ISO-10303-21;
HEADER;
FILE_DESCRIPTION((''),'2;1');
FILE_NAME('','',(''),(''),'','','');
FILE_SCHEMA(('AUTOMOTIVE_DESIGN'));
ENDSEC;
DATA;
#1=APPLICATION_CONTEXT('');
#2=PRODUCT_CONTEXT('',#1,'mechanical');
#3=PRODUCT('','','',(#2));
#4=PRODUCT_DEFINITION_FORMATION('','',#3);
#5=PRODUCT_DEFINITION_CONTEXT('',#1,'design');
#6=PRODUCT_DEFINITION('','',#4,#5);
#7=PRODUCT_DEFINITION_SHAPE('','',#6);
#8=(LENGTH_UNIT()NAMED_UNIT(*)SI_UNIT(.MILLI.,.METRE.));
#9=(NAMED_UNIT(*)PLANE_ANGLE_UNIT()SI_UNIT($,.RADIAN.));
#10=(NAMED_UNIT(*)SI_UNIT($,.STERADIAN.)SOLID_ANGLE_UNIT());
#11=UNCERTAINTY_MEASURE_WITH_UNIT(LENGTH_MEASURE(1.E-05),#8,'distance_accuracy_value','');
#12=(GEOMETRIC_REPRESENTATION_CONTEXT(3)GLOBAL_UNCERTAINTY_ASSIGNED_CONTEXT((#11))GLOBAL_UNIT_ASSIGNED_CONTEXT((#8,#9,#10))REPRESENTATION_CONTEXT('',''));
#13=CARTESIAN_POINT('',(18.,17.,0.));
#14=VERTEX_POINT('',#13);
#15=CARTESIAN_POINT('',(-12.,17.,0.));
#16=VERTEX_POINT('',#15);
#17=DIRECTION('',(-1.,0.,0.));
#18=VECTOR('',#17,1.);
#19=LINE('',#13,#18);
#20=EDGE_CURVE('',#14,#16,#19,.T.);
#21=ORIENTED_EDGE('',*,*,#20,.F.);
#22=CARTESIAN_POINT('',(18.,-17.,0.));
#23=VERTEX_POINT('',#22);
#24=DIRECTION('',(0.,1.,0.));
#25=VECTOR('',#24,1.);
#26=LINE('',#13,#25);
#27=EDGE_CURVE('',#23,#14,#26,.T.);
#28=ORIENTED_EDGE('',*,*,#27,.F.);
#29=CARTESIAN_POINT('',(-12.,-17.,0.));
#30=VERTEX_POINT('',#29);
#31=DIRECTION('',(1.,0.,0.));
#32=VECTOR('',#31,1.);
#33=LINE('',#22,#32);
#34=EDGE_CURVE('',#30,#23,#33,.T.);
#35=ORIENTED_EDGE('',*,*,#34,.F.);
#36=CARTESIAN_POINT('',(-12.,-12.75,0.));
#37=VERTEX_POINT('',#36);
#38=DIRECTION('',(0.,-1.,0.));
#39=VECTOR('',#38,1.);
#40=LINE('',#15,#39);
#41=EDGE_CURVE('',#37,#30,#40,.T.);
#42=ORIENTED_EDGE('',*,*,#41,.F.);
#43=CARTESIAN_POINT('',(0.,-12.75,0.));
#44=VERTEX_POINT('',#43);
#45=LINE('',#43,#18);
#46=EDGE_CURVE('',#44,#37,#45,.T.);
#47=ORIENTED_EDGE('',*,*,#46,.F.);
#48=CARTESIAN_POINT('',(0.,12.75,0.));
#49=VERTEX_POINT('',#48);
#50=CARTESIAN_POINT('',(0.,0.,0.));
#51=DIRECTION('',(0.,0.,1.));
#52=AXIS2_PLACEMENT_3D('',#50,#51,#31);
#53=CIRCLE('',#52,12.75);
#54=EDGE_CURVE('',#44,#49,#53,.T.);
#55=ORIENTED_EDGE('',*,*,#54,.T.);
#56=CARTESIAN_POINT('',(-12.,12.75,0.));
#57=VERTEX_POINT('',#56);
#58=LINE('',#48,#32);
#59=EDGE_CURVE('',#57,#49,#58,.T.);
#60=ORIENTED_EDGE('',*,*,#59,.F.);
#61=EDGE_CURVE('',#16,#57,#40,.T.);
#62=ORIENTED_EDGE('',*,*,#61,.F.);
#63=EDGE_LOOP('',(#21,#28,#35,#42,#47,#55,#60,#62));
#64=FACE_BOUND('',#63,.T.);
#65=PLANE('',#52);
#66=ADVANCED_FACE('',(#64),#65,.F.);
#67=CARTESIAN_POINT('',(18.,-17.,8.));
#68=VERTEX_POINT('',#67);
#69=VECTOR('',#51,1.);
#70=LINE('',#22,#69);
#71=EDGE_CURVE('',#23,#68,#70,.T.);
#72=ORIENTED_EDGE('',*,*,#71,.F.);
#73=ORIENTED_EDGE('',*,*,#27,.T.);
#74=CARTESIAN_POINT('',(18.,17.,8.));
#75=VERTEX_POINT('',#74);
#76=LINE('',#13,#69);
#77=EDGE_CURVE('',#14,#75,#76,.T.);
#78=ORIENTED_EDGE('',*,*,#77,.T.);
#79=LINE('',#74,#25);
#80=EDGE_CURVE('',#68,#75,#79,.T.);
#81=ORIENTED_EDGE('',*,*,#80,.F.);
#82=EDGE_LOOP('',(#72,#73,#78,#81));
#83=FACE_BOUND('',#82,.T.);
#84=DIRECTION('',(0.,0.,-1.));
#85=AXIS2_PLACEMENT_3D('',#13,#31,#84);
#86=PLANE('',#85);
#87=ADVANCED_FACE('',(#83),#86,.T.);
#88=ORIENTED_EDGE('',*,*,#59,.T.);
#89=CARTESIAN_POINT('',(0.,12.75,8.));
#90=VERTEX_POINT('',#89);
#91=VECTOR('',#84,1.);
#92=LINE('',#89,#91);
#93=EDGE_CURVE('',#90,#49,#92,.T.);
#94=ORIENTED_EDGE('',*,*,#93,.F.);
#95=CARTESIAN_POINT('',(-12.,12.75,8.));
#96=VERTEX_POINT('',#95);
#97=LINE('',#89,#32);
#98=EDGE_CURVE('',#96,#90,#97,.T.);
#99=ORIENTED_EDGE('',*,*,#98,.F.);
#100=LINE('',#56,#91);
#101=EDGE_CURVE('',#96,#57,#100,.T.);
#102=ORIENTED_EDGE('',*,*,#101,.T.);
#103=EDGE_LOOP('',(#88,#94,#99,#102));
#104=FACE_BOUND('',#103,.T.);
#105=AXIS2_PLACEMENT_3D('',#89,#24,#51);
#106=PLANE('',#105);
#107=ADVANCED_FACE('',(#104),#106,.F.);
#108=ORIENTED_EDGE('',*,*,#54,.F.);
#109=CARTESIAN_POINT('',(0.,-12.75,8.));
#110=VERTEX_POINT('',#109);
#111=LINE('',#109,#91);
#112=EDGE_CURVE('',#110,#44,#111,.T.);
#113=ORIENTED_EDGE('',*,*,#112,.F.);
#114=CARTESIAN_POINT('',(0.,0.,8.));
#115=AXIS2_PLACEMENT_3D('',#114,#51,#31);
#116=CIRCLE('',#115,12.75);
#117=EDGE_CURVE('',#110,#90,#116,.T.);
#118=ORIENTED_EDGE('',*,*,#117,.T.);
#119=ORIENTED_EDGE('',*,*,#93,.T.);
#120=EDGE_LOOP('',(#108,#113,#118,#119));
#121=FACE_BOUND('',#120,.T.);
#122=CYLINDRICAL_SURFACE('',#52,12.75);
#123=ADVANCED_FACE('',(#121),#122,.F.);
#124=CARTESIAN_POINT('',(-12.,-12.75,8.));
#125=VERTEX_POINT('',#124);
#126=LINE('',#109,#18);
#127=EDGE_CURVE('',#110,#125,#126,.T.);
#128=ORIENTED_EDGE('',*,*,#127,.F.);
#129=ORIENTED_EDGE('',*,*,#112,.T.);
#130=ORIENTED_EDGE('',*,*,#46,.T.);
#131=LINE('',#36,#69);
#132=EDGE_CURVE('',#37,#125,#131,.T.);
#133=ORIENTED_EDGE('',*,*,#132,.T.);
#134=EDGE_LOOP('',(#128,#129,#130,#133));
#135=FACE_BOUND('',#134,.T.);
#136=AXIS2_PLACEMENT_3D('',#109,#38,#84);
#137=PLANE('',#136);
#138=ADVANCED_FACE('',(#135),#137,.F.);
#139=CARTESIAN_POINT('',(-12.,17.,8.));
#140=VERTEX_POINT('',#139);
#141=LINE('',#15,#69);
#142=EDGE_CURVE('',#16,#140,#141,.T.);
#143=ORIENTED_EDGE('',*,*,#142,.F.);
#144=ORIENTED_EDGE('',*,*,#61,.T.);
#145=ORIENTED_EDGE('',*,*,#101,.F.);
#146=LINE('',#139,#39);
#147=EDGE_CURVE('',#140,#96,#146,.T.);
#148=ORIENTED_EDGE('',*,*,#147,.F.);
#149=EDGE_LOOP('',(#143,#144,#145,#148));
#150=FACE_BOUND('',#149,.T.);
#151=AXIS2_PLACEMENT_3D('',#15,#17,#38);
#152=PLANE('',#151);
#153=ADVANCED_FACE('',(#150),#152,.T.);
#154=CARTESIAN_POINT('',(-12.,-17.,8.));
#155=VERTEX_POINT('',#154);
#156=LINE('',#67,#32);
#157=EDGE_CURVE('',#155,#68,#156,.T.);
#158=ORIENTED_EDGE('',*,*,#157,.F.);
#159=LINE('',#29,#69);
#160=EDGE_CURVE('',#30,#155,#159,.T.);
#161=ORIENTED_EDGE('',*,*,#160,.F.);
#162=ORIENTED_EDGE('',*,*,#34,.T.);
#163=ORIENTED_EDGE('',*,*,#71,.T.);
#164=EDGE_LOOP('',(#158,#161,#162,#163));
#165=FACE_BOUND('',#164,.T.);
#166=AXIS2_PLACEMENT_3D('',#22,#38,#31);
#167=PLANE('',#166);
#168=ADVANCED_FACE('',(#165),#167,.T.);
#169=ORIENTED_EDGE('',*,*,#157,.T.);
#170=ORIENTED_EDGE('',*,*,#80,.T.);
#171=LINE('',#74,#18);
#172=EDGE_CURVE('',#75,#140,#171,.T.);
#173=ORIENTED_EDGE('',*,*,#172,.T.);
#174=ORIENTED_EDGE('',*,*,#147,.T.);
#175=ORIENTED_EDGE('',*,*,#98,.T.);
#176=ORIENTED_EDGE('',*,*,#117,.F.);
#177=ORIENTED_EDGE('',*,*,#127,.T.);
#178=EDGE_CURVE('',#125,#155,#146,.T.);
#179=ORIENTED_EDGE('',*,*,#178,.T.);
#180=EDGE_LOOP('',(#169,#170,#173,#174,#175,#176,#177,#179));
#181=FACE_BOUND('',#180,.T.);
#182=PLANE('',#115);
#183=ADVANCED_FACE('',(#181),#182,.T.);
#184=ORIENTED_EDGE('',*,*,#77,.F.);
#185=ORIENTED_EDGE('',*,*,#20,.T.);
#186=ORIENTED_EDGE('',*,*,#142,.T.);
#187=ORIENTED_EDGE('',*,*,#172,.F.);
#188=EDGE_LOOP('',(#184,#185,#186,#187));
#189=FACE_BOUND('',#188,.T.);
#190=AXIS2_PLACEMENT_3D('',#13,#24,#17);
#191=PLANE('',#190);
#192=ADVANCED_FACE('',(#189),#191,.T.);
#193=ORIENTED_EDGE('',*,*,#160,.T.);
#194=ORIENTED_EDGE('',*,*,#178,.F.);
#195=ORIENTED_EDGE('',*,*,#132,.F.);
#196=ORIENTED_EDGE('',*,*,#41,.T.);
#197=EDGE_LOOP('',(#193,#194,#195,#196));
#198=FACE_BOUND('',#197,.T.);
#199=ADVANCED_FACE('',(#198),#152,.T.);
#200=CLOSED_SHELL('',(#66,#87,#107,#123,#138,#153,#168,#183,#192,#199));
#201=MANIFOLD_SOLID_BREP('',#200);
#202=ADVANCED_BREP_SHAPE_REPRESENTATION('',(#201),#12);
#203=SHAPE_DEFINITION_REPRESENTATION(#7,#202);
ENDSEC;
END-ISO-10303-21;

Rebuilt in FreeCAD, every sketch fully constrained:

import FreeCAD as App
import Part
import Sketcher
from FreeCAD import Vector

doc = App.newDocument("Part")
body = doc.addObject("PartDesign::Body", "Body")

# Sketch on XY plane
sketch1 = doc.addObject("Sketcher::SketchObject", "Sketch")
body.addObject(sketch1)
sketch1.AttachmentSupport = (doc.XY_Plane, [""])
sketch1.MapMode = "FlatFace"
sketch1.addGeometry(Part.Circle(Vector(0, 0, 0), Vector(0, 0, 1), 17), False)
sketch1.addConstraint([
    Sketcher.Constraint("Coincident", 0, 3, -1, 1),
    Sketcher.Constraint("Diameter", 0, 34.0),
])
pad1 = doc.addObject("PartDesign::Pad", "Pad")
body.addObject(pad1)
pad1.Profile = sketch1
pad1.Length = 8

# Sketch on XY plane
sketch2 = doc.addObject("Sketcher::SketchObject", "Sketch001")
body.addObject(sketch2)
sketch2.AttachmentSupport = (doc.XY_Plane, [""])
sketch2.MapMode = "FlatFace"
sketch2.AttachmentOffset = App.Placement(Vector(0, 0, 8), App.Rotation())
sketch2.addGeometry([
    Part.LineSegment(Vector(-12, 17, 0), Vector(-12, -17, 0)),
    Part.LineSegment(Vector(-12, -17, 0), Vector(18, -17, 0)),
    Part.LineSegment(Vector(18, -17, 0), Vector(18, 17, 0)),
    Part.LineSegment(Vector(18, 17, 0), Vector(-12, 17, 0)),
], False)
sketch2.addConstraint([
    Sketcher.Constraint("Coincident", 0, 2, 1, 1),
    Sketcher.Constraint("Coincident", 1, 2, 2, 1),
    Sketcher.Constraint("Coincident", 2, 2, 3, 1),
    Sketcher.Constraint("Coincident", 3, 2, 0, 1),
    Sketcher.Constraint("Vertical", 0),
    Sketcher.Constraint("Horizontal", 1),
    Sketcher.Constraint("Vertical", 2),
    Sketcher.Constraint("Horizontal", 3),
    Sketcher.Constraint("DistanceX", 1, 1, 1, 2, 30.0),
    Sketcher.Constraint("DistanceY", 0, 2, 0, 1, 34.0),
    Sketcher.Constraint("DistanceX", 0, 2, -1, 1, 12.0),
    Sketcher.Constraint("DistanceY", 0, 2, -1, 1, 17.0),
])
pad2 = doc.addObject("PartDesign::Pad", "Pad001")
body.addObject(pad2)
pad2.Profile = sketch2
pad2.Length = 8
pad2.Reversed = True

# Sketch on XY plane
sketch3 = doc.addObject("Sketcher::SketchObject", "Sketch002")
body.addObject(sketch3)
sketch3.AttachmentSupport = (doc.XY_Plane, [""])
sketch3.MapMode = "FlatFace"
sketch3.AttachmentOffset = App.Placement(Vector(0, 0, 8), App.Rotation())
sketch3.addGeometry(Part.Circle(Vector(0, 0, 0), Vector(0, 0, 1), 13), False)
sketch3.addConstraint([
    Sketcher.Constraint("Coincident", 0, 3, -1, 1),
    Sketcher.Constraint("Diameter", 0, 25.5),
])
pocket1 = doc.addObject("PartDesign::Pocket", "Pocket")
body.addObject(pocket1)
pocket1.Profile = sketch3
pocket1.Length = 8

# Sketch on XY plane
sketch4 = doc.addObject("Sketcher::SketchObject", "Sketch003")
body.addObject(sketch4)
sketch4.AttachmentSupport = (doc.XY_Plane, [""])
sketch4.MapMode = "FlatFace"
sketch4.addGeometry([
    Part.LineSegment(Vector(0, 13, 0), Vector(0, -13, 0)),
    Part.LineSegment(Vector(0, -13, 0), Vector(-20, -13, 0)),
    Part.LineSegment(Vector(-20, -13, 0), Vector(-20, 13, 0)),
    Part.LineSegment(Vector(-20, 13, 0), Vector(0, 13, 0)),
], False)
sketch4.addConstraint([
    Sketcher.Constraint("Coincident", 0, 2, 1, 1),
    Sketcher.Constraint("Coincident", 1, 2, 2, 1),
    Sketcher.Constraint("Coincident", 2, 2, 3, 1),
    Sketcher.Constraint("Coincident", 3, 2, 0, 1),
    Sketcher.Constraint("Vertical", 0),
    Sketcher.Constraint("Horizontal", 1),
    Sketcher.Constraint("Vertical", 2),
    Sketcher.Constraint("Horizontal", 3),
    Sketcher.Constraint("Symmetric", 0, 2, 3, 2, -1, 1),
    Sketcher.Constraint("DistanceY", 0, 2, 0, 1, 25.5),
    Sketcher.Constraint("DistanceX", 1, 2, 1, 1, 19.904574),
])
pocket2 = doc.addObject("PartDesign::Pocket", "Pocket001")
body.addObject(pocket2)
pocket2.Profile = sketch4
pocket2.Length = 8
pocket2.Reversed = True

doc.recompute()
